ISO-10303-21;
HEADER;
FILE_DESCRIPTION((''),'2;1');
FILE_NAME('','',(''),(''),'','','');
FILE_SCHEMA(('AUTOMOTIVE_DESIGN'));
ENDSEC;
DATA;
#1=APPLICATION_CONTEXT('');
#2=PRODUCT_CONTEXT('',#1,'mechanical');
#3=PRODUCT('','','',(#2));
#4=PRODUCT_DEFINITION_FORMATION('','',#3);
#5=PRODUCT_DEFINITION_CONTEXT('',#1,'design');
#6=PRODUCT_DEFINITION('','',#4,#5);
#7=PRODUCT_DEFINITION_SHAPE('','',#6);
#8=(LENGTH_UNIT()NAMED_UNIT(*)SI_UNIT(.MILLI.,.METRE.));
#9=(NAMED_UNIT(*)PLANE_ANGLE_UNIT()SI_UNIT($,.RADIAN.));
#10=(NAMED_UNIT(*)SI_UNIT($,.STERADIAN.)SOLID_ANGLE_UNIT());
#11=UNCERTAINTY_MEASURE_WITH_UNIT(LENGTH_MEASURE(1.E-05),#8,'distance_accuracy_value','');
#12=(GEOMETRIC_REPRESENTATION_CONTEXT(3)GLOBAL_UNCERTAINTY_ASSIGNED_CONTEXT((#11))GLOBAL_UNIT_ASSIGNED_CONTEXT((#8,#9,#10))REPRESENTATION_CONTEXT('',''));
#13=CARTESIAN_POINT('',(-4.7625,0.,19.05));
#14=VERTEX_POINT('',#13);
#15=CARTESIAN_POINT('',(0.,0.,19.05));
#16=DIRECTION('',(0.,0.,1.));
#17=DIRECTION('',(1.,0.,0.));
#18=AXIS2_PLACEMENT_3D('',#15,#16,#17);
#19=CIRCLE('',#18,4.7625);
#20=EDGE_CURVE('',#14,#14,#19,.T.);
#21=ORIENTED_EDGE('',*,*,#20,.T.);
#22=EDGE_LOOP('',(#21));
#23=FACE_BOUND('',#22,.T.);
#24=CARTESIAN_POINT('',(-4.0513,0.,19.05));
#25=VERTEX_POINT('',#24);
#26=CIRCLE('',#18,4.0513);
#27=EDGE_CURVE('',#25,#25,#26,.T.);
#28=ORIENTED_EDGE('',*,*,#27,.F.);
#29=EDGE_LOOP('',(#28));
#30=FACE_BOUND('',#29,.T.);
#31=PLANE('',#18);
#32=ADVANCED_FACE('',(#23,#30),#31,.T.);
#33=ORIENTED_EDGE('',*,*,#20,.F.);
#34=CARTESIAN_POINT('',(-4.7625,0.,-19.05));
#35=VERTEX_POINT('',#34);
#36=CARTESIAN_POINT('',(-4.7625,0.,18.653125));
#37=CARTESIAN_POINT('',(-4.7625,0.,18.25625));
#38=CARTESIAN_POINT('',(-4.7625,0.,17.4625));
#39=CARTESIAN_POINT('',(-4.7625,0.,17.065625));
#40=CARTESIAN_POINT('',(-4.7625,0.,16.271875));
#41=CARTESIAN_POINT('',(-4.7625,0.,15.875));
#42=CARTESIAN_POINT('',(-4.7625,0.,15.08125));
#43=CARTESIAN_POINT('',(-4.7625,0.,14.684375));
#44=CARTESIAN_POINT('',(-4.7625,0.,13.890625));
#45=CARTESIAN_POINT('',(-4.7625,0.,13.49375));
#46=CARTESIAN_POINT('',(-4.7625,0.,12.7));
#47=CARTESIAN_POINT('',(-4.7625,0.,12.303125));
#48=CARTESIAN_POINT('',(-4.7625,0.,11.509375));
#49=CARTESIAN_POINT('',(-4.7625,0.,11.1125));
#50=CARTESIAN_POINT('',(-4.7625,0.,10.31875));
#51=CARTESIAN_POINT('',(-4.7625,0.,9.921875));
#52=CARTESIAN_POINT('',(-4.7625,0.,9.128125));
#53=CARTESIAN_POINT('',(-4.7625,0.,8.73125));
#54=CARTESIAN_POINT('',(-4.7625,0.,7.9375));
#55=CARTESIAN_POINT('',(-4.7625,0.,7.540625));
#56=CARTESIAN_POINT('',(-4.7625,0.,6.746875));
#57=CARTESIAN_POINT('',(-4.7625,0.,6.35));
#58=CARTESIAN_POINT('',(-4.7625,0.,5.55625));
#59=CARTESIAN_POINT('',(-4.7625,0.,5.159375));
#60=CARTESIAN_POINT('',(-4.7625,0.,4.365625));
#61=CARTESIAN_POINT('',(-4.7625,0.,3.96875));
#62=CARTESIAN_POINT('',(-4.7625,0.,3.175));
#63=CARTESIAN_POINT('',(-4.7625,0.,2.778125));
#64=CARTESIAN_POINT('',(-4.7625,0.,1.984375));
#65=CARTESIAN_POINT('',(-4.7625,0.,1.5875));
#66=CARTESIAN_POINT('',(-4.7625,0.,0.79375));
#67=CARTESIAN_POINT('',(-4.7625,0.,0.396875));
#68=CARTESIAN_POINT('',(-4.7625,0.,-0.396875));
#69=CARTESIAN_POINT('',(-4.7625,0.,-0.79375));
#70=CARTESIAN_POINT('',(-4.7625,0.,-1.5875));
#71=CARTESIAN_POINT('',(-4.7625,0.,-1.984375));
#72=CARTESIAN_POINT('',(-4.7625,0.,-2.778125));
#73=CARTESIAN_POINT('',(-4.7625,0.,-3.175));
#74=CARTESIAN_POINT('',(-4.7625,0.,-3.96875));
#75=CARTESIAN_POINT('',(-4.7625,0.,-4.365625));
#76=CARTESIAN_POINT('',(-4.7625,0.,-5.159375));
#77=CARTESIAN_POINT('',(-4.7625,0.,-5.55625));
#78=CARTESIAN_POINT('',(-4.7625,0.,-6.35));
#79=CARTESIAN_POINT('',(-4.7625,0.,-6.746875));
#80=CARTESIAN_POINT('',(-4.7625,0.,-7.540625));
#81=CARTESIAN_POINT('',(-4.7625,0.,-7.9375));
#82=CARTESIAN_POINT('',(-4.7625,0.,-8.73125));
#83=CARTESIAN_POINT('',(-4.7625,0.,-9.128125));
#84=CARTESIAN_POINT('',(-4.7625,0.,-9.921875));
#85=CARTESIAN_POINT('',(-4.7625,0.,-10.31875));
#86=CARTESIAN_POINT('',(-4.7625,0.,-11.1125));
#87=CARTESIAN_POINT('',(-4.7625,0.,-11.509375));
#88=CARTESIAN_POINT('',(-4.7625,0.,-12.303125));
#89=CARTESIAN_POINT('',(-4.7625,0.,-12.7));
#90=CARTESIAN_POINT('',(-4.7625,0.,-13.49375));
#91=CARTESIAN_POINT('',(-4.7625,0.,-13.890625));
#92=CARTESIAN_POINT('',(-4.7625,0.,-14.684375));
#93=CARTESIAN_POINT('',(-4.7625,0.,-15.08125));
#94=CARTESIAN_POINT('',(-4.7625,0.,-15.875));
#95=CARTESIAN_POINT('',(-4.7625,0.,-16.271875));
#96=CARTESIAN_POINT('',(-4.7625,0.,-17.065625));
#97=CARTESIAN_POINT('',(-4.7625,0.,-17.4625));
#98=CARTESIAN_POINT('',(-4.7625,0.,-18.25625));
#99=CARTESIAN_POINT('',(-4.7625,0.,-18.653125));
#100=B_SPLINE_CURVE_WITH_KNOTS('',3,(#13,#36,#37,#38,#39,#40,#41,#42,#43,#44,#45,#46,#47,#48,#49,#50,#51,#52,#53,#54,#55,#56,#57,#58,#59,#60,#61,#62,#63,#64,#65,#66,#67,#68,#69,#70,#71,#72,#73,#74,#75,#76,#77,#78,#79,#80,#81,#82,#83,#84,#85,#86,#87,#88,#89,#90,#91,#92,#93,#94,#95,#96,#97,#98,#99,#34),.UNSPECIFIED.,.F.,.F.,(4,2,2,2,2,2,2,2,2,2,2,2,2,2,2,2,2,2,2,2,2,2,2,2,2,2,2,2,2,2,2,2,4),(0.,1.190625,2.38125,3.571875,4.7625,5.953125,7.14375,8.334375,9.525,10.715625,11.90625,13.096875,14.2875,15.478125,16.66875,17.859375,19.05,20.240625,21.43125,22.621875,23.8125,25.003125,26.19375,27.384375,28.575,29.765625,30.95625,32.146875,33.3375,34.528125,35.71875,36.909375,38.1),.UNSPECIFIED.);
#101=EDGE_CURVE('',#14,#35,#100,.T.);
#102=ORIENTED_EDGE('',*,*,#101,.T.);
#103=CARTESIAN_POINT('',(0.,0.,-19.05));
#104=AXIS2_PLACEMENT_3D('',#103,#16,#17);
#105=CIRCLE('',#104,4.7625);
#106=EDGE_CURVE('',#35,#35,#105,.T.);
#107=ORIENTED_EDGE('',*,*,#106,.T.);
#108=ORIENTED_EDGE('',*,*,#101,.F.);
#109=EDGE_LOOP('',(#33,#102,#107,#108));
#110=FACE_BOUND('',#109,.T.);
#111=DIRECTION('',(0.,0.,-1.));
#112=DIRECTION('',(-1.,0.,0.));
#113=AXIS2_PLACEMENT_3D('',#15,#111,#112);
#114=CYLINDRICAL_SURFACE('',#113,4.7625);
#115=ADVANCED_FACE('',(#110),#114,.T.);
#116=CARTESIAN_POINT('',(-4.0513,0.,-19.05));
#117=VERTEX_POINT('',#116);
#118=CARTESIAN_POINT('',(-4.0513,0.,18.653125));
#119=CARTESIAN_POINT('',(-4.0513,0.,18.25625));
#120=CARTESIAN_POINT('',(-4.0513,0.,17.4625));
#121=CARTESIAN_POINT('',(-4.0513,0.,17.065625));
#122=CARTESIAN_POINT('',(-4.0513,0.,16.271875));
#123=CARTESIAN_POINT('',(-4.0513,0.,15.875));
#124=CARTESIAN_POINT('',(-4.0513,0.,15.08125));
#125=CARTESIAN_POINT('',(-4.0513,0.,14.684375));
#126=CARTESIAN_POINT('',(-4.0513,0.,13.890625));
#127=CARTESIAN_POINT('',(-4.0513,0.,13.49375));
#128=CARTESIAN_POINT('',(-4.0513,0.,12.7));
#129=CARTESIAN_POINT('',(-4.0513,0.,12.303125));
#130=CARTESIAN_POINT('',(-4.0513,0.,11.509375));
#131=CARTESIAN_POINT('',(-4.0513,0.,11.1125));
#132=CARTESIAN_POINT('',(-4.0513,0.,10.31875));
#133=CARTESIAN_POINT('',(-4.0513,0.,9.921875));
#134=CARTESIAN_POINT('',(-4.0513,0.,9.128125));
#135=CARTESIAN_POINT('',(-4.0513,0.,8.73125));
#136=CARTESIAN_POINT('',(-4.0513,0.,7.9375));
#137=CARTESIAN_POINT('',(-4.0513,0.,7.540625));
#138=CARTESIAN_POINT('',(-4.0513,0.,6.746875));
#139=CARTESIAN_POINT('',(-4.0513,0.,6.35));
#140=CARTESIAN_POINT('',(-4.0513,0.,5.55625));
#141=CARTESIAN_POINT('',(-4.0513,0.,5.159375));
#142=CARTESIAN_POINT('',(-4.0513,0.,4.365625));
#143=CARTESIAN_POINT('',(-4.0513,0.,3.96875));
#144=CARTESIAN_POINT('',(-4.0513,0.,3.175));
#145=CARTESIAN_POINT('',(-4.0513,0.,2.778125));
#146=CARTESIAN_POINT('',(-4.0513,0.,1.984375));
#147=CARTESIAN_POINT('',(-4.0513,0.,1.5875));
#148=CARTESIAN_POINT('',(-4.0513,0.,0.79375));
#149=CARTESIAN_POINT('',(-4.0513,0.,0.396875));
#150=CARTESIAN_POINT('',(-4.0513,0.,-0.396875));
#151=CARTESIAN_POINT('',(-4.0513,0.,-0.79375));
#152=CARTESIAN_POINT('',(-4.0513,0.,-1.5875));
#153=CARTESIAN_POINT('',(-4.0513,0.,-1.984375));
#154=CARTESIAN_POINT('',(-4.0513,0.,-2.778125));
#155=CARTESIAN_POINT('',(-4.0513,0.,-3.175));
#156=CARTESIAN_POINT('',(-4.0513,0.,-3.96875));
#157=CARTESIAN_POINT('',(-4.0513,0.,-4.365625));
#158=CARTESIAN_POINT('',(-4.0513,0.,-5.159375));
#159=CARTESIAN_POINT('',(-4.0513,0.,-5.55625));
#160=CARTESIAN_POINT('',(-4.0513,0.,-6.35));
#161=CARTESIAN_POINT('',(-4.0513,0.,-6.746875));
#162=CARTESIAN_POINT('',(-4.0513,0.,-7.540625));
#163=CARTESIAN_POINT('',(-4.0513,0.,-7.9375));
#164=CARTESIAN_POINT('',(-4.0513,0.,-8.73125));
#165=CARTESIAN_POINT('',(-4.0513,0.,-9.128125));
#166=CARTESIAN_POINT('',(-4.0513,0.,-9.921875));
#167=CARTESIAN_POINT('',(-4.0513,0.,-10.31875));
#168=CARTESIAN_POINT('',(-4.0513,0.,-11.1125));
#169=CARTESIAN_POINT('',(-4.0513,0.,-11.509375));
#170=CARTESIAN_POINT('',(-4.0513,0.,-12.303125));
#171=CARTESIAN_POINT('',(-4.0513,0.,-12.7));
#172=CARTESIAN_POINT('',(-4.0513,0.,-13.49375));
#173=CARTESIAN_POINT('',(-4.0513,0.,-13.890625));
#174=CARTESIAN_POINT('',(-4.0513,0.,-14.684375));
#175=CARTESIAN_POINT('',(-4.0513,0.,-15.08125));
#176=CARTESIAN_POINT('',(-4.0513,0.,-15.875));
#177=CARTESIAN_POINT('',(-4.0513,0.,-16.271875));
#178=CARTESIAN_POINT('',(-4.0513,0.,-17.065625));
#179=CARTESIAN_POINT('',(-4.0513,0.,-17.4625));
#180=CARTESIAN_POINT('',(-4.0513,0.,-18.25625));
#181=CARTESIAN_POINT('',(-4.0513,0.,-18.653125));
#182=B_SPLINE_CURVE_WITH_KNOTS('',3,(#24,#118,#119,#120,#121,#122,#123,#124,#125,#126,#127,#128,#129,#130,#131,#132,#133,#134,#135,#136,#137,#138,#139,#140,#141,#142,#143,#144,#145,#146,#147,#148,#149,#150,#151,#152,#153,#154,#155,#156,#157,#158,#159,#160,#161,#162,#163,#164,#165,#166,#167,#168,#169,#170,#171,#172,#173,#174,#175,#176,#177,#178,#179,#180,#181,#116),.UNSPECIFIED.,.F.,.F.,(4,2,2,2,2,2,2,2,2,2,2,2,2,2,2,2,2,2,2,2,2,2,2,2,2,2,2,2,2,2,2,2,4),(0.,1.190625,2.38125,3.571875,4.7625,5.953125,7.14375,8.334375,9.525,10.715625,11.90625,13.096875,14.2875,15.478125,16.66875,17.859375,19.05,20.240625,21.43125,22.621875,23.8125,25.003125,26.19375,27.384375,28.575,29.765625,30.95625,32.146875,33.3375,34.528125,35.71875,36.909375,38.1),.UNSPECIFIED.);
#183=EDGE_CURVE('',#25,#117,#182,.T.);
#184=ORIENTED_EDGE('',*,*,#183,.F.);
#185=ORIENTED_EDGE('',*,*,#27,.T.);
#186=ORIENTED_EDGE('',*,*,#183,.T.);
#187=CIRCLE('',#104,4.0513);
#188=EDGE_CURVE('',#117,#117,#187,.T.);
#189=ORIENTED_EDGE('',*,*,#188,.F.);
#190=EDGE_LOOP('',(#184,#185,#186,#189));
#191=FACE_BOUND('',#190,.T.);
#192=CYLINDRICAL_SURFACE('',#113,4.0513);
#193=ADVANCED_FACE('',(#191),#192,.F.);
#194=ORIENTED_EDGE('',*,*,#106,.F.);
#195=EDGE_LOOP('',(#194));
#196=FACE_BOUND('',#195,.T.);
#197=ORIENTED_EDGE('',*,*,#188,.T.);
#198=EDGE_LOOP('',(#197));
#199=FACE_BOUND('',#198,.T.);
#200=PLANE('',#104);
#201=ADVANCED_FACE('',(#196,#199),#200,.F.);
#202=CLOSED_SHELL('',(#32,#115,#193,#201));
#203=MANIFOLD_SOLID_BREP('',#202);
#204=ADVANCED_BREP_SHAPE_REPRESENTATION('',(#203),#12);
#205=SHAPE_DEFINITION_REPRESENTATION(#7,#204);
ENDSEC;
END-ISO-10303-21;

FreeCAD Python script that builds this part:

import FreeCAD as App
import Part
import Sketcher
from FreeCAD import Vector
Q = App.Units.Quantity

doc = App.newDocument("Part")
body = doc.addObject("PartDesign::Body", "Body")

sketch1 = doc.addObject("Sketcher::SketchObject", "Sketch")
body.addObject(sketch1)
sketch1.AttachmentSupport = (doc.XY_Plane, [""])
sketch1.MapMode = "FlatFace"
sketch1.addGeometry([
    Part.Circle(Vector(0, 0, 0), Vector(0, 0, 1), 4.8),
    Part.Circle(Vector(0, 0, 0), Vector(0, 0, 1), 4.1),
], False)
sketch1.addConstraint([
    Sketcher.Constraint("Coincident", 0, 3, -1, 1),
    Sketcher.Constraint("Coincident", 1, 3, -1, 1),
    Sketcher.Constraint("Diameter", 0, Q("0.375 in")),
    Sketcher.Constraint("Diameter", 1, Q("0.319 in")),
])
pad1 = doc.addObject("PartDesign::Pad", "Pad")
body.addObject(pad1)
pad1.Profile = sketch1
pad1.Length = Q("1.5 in")
pad1.Midplane = True

doc.recompute()
